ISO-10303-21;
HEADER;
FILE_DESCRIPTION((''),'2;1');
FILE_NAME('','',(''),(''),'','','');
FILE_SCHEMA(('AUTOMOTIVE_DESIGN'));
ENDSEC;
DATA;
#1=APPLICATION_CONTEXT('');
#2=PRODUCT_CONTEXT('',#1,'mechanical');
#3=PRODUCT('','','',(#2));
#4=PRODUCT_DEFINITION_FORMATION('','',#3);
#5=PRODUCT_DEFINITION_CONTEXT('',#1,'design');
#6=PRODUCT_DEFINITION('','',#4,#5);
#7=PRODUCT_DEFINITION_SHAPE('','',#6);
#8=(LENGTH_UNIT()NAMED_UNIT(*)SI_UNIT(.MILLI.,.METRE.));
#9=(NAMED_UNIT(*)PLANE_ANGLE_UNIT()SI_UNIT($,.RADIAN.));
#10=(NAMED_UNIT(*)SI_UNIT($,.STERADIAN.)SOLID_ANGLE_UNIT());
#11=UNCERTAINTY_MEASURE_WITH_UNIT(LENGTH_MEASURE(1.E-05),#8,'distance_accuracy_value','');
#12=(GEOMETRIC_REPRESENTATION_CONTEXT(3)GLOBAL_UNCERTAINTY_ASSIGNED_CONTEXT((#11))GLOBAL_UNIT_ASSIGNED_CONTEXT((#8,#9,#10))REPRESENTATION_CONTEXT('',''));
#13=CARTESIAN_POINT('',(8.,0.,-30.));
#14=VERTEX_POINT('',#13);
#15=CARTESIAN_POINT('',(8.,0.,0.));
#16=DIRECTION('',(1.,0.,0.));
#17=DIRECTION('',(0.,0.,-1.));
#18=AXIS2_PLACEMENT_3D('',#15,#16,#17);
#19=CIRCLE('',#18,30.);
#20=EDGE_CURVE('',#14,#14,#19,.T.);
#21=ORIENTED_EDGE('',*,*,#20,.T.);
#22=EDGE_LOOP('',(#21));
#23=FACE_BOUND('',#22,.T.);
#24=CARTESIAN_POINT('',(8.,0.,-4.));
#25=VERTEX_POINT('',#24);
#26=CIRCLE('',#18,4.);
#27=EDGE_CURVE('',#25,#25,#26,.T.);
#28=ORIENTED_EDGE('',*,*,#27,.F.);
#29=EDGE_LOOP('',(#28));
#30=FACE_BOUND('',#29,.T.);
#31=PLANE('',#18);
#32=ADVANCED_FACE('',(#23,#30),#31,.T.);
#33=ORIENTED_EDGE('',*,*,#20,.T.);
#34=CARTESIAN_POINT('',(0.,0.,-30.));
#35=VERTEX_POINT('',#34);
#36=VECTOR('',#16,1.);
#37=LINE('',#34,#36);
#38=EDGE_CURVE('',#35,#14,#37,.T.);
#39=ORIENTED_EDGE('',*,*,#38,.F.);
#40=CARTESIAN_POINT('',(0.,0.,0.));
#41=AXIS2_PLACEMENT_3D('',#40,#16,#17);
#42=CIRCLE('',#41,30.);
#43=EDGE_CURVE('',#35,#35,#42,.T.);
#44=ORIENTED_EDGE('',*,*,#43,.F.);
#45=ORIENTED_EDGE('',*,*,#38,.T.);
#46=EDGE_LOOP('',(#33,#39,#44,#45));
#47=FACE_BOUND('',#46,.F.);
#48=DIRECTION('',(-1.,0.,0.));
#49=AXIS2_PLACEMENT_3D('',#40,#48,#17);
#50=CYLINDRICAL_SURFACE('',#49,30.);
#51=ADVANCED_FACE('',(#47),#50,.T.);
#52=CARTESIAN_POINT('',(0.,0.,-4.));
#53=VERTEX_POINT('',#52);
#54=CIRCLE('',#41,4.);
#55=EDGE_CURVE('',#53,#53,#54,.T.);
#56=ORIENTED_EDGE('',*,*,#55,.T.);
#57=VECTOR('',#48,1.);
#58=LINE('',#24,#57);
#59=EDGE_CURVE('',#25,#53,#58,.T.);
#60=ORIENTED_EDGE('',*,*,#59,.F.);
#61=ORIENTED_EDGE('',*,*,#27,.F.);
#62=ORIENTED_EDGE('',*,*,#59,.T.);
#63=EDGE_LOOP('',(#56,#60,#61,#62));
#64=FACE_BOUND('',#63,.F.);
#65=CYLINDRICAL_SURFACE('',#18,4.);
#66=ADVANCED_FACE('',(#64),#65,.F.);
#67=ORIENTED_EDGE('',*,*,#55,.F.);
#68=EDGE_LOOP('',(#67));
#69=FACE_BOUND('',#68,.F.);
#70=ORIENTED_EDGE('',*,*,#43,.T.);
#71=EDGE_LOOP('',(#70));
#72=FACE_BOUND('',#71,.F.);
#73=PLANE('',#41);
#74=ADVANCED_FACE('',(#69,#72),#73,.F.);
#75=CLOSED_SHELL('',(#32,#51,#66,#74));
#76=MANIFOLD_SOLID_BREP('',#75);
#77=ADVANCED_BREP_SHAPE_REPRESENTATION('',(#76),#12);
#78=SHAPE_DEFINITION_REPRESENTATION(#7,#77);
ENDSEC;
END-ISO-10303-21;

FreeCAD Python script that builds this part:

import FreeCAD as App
import Part
import Sketcher

V = App.Vector

doc = App.newDocument("Part")
params = doc.addObject("Spreadsheet::Sheet", "Params")
for row, (alias, value) in enumerate([
    ("sketch1_diameter", "60 mm"),
    ("pad1_length", "8 mm"),
    ("sketch2_diameter", "8 mm"),
], start=1):
    params.set(f"A{row}", alias)
    params.set(f"B{row}", "=" + value)
    params.setAlias(f"B{row}", alias)

body = doc.addObject("PartDesign::Body", "Body")

sketch1 = body.newObject("Sketcher::SketchObject", "Sketch")
sketch1.AttachmentSupport = (doc.getObject("YZ_Plane"), [""])
sketch1.MapMode = "FlatFace"
sketch1.addGeometry(Part.Circle(V(0, 0, 0), V(0, 0, 1), 30), False)
sketch1.addConstraint(Sketcher.Constraint("Coincident", 0, 3, -1, 1))
sketch1.addConstraint(Sketcher.Constraint("Diameter", 0, 60.0))
sketch1.setExpression("Constraints[1]", "Params.sketch1_diameter")
pad1 = body.newObject("PartDesign::Pad", "Pad")
pad1.Profile = sketch1
pad1.setExpression("Length", "Params.pad1_length")

sketch2 = body.newObject("Sketcher::SketchObject", "Sketch001")
sketch2.AttachmentSupport = (doc.getObject("YZ_Plane"), [""])
sketch2.MapMode = "FlatFace"
sketch2.AttachmentOffset = App.Placement(V(0, 0, 8), App.Rotation())
sketch2.addGeometry(Part.Circle(V(0, 0, 0), V(0, 0, 1), 4), False)
sketch2.addConstraint(Sketcher.Constraint("Coincident", 0, 3, -1, 1))
sketch2.addConstraint(Sketcher.Constraint("Diameter", 0, 8.0))
sketch2.setExpression("Constraints[1]", "Params.sketch2_diameter")
pocket1 = body.newObject("PartDesign::Pocket", "Pocket")
pocket1.Profile = sketch2
pocket1.Type = "ThroughAll"

doc.recompute()
